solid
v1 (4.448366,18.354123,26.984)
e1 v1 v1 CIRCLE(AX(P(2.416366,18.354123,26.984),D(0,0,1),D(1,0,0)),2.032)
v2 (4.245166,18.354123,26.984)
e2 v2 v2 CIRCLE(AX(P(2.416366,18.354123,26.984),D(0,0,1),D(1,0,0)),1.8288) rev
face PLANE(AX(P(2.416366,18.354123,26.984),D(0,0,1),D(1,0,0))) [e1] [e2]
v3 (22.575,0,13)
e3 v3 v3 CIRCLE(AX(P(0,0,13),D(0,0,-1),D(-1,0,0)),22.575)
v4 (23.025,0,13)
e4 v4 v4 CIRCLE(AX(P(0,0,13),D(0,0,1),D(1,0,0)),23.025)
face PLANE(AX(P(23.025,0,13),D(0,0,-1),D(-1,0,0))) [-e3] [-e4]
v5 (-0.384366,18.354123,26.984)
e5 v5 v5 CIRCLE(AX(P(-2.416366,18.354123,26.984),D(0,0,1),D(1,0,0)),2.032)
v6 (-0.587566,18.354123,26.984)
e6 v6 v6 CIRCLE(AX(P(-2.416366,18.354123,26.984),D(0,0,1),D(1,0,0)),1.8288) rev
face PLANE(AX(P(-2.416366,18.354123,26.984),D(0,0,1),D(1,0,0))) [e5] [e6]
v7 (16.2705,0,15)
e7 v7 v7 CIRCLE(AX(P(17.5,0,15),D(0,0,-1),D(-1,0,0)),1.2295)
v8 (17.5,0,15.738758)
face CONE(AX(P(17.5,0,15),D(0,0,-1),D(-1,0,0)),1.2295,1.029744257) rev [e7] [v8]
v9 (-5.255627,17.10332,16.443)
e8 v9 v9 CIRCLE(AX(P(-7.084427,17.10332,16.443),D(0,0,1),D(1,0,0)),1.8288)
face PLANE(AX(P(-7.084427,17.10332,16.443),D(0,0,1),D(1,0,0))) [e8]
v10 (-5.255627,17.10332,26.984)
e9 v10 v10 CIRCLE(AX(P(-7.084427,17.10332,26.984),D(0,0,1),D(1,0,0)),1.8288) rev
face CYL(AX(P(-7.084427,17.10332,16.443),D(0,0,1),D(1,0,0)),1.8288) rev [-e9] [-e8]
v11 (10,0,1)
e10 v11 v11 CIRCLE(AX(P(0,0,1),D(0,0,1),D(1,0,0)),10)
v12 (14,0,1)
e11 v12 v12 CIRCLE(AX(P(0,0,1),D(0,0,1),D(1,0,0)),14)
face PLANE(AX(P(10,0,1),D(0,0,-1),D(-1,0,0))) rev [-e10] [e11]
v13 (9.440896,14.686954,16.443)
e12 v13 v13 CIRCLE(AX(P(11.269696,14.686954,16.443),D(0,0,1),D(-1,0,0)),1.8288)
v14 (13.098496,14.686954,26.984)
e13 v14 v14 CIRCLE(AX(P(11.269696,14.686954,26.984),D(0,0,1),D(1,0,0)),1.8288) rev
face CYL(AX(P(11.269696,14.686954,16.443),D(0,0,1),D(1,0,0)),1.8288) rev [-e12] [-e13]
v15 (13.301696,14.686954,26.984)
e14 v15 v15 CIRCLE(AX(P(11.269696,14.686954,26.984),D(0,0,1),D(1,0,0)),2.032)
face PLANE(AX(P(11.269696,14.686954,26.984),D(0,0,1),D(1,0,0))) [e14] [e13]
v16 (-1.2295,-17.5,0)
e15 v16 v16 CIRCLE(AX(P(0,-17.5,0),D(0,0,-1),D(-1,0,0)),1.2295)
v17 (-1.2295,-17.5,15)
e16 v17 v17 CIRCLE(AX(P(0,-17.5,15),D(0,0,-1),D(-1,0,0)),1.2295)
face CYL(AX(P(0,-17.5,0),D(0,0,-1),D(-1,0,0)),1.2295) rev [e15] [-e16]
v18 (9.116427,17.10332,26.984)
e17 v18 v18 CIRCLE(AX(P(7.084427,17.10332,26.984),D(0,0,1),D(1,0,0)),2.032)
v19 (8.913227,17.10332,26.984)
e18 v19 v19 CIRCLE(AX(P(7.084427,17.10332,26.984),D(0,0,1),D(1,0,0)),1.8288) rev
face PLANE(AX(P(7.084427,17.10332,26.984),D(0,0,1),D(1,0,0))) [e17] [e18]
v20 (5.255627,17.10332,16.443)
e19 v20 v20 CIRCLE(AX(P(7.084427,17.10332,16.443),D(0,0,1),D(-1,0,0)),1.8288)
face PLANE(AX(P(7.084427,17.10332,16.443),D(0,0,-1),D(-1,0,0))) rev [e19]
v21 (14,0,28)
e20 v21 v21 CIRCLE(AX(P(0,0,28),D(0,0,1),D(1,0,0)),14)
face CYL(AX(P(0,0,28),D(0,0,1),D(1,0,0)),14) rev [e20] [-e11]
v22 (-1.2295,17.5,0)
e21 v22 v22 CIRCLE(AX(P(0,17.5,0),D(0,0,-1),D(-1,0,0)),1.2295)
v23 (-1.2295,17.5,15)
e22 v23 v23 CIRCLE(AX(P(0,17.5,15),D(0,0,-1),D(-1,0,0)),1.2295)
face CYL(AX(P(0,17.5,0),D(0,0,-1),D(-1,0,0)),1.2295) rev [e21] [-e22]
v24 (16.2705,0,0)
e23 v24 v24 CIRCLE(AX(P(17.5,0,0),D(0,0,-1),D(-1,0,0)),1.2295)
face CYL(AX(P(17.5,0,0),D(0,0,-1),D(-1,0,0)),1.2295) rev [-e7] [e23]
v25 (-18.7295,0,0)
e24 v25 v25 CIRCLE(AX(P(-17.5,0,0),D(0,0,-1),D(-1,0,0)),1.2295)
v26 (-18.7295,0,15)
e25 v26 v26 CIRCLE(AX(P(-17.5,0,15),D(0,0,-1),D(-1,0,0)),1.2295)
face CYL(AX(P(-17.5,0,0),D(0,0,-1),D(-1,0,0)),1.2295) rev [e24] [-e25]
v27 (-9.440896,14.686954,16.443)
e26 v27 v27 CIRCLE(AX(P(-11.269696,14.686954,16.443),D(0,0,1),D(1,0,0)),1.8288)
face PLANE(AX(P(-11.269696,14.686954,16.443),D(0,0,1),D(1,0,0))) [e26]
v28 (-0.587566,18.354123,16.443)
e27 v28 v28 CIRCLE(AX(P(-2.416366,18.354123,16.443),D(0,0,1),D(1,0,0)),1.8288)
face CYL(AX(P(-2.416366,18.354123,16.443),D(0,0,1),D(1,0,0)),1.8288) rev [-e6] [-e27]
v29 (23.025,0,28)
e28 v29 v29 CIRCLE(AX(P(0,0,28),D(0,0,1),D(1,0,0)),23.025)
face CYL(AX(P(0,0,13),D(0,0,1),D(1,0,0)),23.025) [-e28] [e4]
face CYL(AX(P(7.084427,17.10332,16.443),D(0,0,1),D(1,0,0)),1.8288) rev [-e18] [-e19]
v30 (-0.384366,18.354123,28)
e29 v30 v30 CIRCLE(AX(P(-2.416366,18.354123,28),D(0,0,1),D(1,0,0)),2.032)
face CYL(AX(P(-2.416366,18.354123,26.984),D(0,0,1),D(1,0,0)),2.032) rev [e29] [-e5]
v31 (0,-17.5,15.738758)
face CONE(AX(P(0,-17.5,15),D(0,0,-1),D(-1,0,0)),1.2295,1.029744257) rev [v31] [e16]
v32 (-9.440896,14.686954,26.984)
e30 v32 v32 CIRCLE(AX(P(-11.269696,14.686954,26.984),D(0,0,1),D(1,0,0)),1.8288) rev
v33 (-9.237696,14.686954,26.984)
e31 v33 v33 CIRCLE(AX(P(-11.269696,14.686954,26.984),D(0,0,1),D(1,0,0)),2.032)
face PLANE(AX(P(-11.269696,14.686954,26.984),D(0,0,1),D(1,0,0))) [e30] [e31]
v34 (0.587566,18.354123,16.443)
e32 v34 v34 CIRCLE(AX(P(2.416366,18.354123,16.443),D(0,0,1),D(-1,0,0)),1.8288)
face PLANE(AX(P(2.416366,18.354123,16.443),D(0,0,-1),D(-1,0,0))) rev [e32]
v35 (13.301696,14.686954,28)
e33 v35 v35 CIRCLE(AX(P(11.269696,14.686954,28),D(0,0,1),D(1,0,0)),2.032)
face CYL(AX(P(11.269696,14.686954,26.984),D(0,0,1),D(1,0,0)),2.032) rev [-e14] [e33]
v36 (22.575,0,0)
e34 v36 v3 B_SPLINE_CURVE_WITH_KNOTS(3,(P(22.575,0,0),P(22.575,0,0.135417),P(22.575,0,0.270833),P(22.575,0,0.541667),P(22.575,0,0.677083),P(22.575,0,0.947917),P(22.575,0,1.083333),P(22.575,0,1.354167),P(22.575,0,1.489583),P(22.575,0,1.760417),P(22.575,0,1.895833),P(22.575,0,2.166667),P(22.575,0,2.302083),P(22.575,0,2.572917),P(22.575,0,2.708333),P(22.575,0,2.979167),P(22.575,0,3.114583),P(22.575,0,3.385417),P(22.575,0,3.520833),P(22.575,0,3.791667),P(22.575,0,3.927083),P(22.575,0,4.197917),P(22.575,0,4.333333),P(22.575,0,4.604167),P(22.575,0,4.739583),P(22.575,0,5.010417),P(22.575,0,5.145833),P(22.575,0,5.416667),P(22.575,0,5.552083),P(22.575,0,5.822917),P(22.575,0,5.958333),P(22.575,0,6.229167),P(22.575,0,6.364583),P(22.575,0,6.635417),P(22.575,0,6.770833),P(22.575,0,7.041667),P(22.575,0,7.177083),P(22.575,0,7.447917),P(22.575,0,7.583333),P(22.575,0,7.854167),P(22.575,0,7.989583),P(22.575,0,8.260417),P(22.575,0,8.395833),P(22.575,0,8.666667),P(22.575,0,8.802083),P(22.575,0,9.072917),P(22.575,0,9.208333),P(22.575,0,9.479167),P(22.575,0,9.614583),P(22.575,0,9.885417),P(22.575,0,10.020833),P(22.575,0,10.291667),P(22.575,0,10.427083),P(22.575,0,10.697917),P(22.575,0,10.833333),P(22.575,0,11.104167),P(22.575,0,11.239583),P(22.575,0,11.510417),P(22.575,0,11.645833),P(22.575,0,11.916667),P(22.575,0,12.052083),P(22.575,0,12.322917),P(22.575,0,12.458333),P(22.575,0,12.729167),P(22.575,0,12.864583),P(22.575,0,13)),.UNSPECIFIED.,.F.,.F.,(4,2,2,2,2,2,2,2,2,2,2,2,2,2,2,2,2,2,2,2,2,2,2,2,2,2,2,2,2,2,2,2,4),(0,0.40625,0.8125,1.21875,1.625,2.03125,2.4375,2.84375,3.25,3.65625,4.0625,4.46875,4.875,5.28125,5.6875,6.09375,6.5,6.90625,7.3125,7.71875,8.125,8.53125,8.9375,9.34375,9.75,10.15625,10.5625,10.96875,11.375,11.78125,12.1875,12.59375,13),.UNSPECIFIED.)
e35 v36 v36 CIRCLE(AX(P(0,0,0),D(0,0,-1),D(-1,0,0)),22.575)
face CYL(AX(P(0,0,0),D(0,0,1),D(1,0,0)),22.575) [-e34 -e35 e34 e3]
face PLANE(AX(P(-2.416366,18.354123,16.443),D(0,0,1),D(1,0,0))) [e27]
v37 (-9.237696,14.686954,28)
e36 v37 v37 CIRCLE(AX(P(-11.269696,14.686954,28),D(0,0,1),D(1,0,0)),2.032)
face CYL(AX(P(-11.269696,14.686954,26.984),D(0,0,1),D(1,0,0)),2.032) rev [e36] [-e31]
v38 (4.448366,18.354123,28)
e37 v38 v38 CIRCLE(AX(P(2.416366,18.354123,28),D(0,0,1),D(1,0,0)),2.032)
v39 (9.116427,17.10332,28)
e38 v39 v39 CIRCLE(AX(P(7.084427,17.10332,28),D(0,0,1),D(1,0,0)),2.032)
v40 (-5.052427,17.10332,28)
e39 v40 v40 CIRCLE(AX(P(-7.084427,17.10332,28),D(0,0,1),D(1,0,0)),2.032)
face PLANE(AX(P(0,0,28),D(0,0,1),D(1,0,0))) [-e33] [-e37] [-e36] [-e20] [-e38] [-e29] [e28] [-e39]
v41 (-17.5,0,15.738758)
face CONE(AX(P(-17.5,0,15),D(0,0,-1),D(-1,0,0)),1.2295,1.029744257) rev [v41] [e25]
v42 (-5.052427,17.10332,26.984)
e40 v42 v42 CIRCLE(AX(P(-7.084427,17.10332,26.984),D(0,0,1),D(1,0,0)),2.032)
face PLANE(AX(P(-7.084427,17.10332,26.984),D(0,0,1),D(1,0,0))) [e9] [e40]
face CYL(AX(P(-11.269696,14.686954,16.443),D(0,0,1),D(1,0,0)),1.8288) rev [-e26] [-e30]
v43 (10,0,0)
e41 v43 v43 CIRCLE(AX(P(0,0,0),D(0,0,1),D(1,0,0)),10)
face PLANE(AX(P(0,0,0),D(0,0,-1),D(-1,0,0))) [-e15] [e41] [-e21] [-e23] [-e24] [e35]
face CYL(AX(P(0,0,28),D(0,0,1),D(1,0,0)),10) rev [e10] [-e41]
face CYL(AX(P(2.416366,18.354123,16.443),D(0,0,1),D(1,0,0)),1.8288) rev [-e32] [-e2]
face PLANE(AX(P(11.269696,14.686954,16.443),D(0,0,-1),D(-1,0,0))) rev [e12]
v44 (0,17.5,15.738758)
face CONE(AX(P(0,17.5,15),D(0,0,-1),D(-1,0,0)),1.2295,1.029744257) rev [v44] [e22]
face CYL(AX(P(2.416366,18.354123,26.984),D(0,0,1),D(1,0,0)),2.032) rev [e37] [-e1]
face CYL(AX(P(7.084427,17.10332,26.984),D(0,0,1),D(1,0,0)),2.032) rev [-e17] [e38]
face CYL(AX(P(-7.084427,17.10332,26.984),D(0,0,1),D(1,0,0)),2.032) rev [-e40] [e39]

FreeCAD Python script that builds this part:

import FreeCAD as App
import Part
import Sketcher
from FreeCAD import Vector
Q = App.Units.Quantity

doc = App.newDocument("Part")
params = doc.addObject("Spreadsheet::Sheet", "Params")
for row, (alias, value) in enumerate([
    ("revolution_angle", "360 deg"),
    ("pad1_length", "13 mm"),
    ("hole_diameter", "20 mm"),
    ("hole_cbore_diameter", "28 mm"),
    ("hole_cbore_depth", "27 mm"),
    ("hole2_diameter", "2.459 mm"),
    ("hole2_depth", "15 mm"),
    ("sketch5_diameter", "0.144 in"),
    ("pocket1_length", "0.455 in"),
    ("sketch6_diameter", "0.16 in"),
    ("pocket2_length", "0.04 in"),
], start=1):
    params.set(f"A{row}", alias)
    params.set(f"B{row}", "=" + value)
    params.setAlias(f"B{row}", alias)

body = doc.addObject("PartDesign::Body", "Body")

sketch1 = body.newObject("Sketcher::SketchObject", "Sketch")
sketch1.AttachmentSupport = (doc.getObject("XZ_Plane"), [""])
sketch1.MapMode = "FlatFace"
sketch1.addGeometry([
    Part.LineSegment(Vector(0, 13, 0), Vector(0, 28, 0)),
    Part.LineSegment(Vector(0, 28, 0), Vector(23, 28, 0)),
    Part.LineSegment(Vector(23, 28, 0), Vector(23, 13, 0)),
    Part.LineSegment(Vector(23, 13, 0), Vector(0, 13, 0)),
], False)
sketch1.addConstraint([
    Sketcher.Constraint("Coincident", 0, 2, 1, 1),
    Sketcher.Constraint("Coincident", 1, 2, 2, 1),
    Sketcher.Constraint("Coincident", 2, 2, 3, 1),
    Sketcher.Constraint("Coincident", 3, 2, 0, 1),
    Sketcher.Constraint("Vertical", 0),
    Sketcher.Constraint("Horizontal", 1),
    Sketcher.Constraint("Vertical", 2),
    Sketcher.Constraint("Horizontal", 3),
    Sketcher.Constraint("PointOnObject", 0, 2, -2),
    Sketcher.Constraint("DistanceX", 1, 1, 1, 2, 23.025),
    Sketcher.Constraint("DistanceY", 0, 1, 0, 2, 15.0),
    Sketcher.Constraint("DistanceY", -1, 1, 0, 2, 28.0),
])
revolution = body.newObject("PartDesign::Revolution", "Revolution")
revolution.Profile = sketch1
revolution.ReferenceAxis = (sketch1, ["V_Axis"])
revolution.setExpression("Angle", "Params.revolution_angle")

sketch2 = body.newObject("Sketcher::SketchObject", "Sketch001")
sketch2.AttachmentSupport = (doc.getObject("XY_Plane"), [""])
sketch2.MapMode = "FlatFace"
sketch2.AttachmentOffset = App.Placement(Vector(0, 0, 13), App.Rotation())
sketch2.addGeometry(Part.Circle(Vector(0, 0, 0), Vector(0, 0, 1), 23), False)
sketch2.addConstraint([
    Sketcher.Constraint("Coincident", 0, 3, -1, 1),
    Sketcher.Constraint("Diameter", 0, 45.15),
])
pad1 = body.newObject("PartDesign::Pad", "Pad")
pad1.Profile = sketch2
pad1.setExpression("Length", "Params.pad1_length")
pad1.Reversed = True

sketch3 = body.newObject("Sketcher::SketchObject", "Sketch002")
sketch3.AttachmentSupport = (doc.getObject("XY_Plane"), [""])
sketch3.MapMode = "FlatFace"
sketch3.AttachmentOffset = App.Placement(Vector(0, 0, 28), App.Rotation())
sketch3.addGeometry(Part.Circle(Vector(0, 0, 0), Vector(0, 0, 1), 10), False)
sketch3.addConstraint([
    Sketcher.Constraint("Coincident", 0, 3, -1, 1),
    Sketcher.Constraint("Diameter", 0, 20.0),
])
doc.recompute()
hole = body.newObject("PartDesign::Hole", "Hole")
hole.Profile = sketch3
hole.ThreadType = "None"
hole.setExpression("Diameter", "Params.hole_diameter")
hole.DepthType = "ThroughAll"
hole.HoleCutType = "Counterbore"
hole.setExpression("HoleCutDiameter", "Params.hole_cbore_diameter")
hole.setExpression("HoleCutDepth", "Params.hole_cbore_depth")

sketch4 = body.newObject("Sketcher::SketchObject", "Sketch003")
sketch4.AttachmentSupport = (doc.getObject("XY_Plane"), [""])
sketch4.MapMode = "FlatFace"
sketch4.addGeometry([
    Part.Circle(Vector(0, 17.5, 0), Vector(0, 0, 1), 1.2),
    Part.Circle(Vector(17.5, 0, 0), Vector(0, 0, 1), 1.2),
    Part.Circle(Vector(0, -17.5, 0), Vector(0, 0, 1), 1.2),
    Part.Circle(Vector(-17.5, 0, 0), Vector(0, 0, 1), 1.2),
], False)
sketch4.addConstraint([
    Sketcher.Constraint("Equal", 0, 1),
    Sketcher.Constraint("Equal", 1, 2),
    Sketcher.Constraint("Equal", 2, 3),
    Sketcher.Constraint("Symmetric", 0, 3, 2, 3, -1, 1),
    Sketcher.Constraint("Symmetric", 1, 3, 3, 3, -1, 1),
    Sketcher.Constraint("PointOnObject", 0, 3, -2),
    Sketcher.Constraint("PointOnObject", 1, 3, -1),
    Sketcher.Constraint("Diameter", 0, 2.459),
    Sketcher.Constraint("DistanceY", -1, 1, 0, 3, 17.5),
    Sketcher.Constraint("DistanceX", -1, 1, 1, 3, 17.5),
])
doc.recompute()
hole2 = body.newObject("PartDesign::Hole", "Hole001")
hole2.Profile = sketch4
hole2.ThreadType = "None"
hole2.setExpression("Diameter", "Params.hole2_diameter")
hole2.DepthType = "Dimension"
hole2.setExpression("Depth", "Params.hole2_depth")
hole2.DrillPoint = "Angled"
hole2.DrillPointAngle = 118
hole2.Reversed = True

sketch5 = body.newObject("Sketcher::SketchObject", "Sketch004")
sketch5.AttachmentSupport = (doc.getObject("XY_Plane"), [""])
sketch5.MapMode = "FlatFace"
sketch5.AttachmentOffset = App.Placement(Vector(0, 0, 28), App.Rotation())
sketch5.addGeometry([
    Part.Circle(Vector(-2.4, 18.4, 0), Vector(0, 0, 1), 1.8),
    Part.Circle(Vector(-7.1, 17.1, 0), Vector(0, 0, 1), 1.8),
    Part.Circle(Vector(-11.3, 14.7, 0), Vector(0, 0, 1), 1.8),
    Part.Circle(Vector(11.3, 14.7, 0), Vector(0, 0, 1), 1.8),
    Part.Circle(Vector(7.1, 17.1, 0), Vector(0, 0, 1), 1.8),
    Part.Circle(Vector(2.4, 18.4, 0), Vector(0, 0, 1), 1.8),
], False)
sketch5.addConstraint([
    Sketcher.Constraint("Equal", 0, 1),
    Sketcher.Constraint("Equal", 1, 2),
    Sketcher.Constraint("Equal", 2, 3),
    Sketcher.Constraint("Equal", 3, 4),
    Sketcher.Constraint("Equal", 4, 5),
    Sketcher.Constraint("Symmetric", 2, 3, 3, 3, -2),
    Sketcher.Constraint("Symmetric", 1, 3, 4, 3, -2),
    Sketcher.Constraint("Symmetric", 0, 3, 5, 3, -2),
    Sketcher.Constraint("Diameter", 0, Q("0.144 in")),
    Sketcher.Constraint("DistanceY", -1, 1, 1, 3, 17.10332),
    Sketcher.Constraint("DistanceX", 1, 3, 0, 3, 4.668061),
    Sketcher.Constraint("DistanceX", 2, 3, 1, 3, 4.185269),
    Sketcher.Constraint("DistanceY", 2, 3, 0, 3, 3.667169),
    Sketcher.Constraint("DistanceX", 2, 3, 3, 3, 22.539392),
    Sketcher.Constraint("DistanceY", -1, 1, 0, 3, 18.354123),
])
sketch5.setExpression("Constraints[8]", "Params.sketch5_diameter")
pocket1 = body.newObject("PartDesign::Pocket", "Pocket")
pocket1.Profile = sketch5
pocket1.setExpression("Length", "Params.pocket1_length")

sketch6 = body.newObject("Sketcher::SketchObject", "Sketch005")
sketch6.AttachmentSupport = (doc.getObject("XY_Plane"), [""])
sketch6.MapMode = "FlatFace"
sketch6.AttachmentOffset = App.Placement(Vector(0, 0, 28), App.Rotation())
sketch6.addGeometry([
    Part.Circle(Vector(-11.3, 14.7, 0), Vector(0, 0, 1), 2),
    Part.Circle(Vector(-7.1, 17.1, 0), Vector(0, 0, 1), 2),
    Part.Circle(Vector(-2.4, 18.4, 0), Vector(0, 0, 1), 2),
    Part.Circle(Vector(2.4, 18.4, 0), Vector(0, 0, 1), 2),
    Part.Circle(Vector(7.1, 17.1, 0), Vector(0, 0, 1), 2),
    Part.Circle(Vector(11.3, 14.7, 0), Vector(0, 0, 1), 2),
], False)
sketch6.addConstraint([
    Sketcher.Constraint("Equal", 0, 1),
    Sketcher.Constraint("Equal", 1, 2),
    Sketcher.Constraint("Equal", 2, 3),
    Sketcher.Constraint("Equal", 3, 4),
    Sketcher.Constraint("Equal", 4, 5),
    Sketcher.Constraint("Symmetric", 2, 3, 3, 3, -2),
    Sketcher.Constraint("Symmetric", 1, 3, 4, 3, -2),
    Sketcher.Constraint("Symmetric", 0, 3, 5, 3, -2),
    Sketcher.Constraint("Diameter", 0, Q("0.16 in")),
    Sketcher.Constraint("DistanceY", -1, 1, 1, 3, 17.10332),
    Sketcher.Constraint("DistanceX", 0, 3, 1, 3, 4.185269),
    Sketcher.Constraint("DistanceX", 1, 3, 2, 3, 4.668061),
    Sketcher.Constraint("DistanceY", 0, 3, 2, 3, 3.667169),
    Sketcher.Constraint("DistanceX", 0, 3, 5, 3, 22.539392),
    Sketcher.Constraint("DistanceY", -1, 1, 0, 3, 14.686954),
])
sketch6.setExpression("Constraints[8]", "Params.sketch6_diameter")
pocket2 = body.newObject("PartDesign::Pocket", "Pocket001")
pocket2.Profile = sketch6
pocket2.setExpression("Length", "Params.pocket2_length")

doc.recompute()
